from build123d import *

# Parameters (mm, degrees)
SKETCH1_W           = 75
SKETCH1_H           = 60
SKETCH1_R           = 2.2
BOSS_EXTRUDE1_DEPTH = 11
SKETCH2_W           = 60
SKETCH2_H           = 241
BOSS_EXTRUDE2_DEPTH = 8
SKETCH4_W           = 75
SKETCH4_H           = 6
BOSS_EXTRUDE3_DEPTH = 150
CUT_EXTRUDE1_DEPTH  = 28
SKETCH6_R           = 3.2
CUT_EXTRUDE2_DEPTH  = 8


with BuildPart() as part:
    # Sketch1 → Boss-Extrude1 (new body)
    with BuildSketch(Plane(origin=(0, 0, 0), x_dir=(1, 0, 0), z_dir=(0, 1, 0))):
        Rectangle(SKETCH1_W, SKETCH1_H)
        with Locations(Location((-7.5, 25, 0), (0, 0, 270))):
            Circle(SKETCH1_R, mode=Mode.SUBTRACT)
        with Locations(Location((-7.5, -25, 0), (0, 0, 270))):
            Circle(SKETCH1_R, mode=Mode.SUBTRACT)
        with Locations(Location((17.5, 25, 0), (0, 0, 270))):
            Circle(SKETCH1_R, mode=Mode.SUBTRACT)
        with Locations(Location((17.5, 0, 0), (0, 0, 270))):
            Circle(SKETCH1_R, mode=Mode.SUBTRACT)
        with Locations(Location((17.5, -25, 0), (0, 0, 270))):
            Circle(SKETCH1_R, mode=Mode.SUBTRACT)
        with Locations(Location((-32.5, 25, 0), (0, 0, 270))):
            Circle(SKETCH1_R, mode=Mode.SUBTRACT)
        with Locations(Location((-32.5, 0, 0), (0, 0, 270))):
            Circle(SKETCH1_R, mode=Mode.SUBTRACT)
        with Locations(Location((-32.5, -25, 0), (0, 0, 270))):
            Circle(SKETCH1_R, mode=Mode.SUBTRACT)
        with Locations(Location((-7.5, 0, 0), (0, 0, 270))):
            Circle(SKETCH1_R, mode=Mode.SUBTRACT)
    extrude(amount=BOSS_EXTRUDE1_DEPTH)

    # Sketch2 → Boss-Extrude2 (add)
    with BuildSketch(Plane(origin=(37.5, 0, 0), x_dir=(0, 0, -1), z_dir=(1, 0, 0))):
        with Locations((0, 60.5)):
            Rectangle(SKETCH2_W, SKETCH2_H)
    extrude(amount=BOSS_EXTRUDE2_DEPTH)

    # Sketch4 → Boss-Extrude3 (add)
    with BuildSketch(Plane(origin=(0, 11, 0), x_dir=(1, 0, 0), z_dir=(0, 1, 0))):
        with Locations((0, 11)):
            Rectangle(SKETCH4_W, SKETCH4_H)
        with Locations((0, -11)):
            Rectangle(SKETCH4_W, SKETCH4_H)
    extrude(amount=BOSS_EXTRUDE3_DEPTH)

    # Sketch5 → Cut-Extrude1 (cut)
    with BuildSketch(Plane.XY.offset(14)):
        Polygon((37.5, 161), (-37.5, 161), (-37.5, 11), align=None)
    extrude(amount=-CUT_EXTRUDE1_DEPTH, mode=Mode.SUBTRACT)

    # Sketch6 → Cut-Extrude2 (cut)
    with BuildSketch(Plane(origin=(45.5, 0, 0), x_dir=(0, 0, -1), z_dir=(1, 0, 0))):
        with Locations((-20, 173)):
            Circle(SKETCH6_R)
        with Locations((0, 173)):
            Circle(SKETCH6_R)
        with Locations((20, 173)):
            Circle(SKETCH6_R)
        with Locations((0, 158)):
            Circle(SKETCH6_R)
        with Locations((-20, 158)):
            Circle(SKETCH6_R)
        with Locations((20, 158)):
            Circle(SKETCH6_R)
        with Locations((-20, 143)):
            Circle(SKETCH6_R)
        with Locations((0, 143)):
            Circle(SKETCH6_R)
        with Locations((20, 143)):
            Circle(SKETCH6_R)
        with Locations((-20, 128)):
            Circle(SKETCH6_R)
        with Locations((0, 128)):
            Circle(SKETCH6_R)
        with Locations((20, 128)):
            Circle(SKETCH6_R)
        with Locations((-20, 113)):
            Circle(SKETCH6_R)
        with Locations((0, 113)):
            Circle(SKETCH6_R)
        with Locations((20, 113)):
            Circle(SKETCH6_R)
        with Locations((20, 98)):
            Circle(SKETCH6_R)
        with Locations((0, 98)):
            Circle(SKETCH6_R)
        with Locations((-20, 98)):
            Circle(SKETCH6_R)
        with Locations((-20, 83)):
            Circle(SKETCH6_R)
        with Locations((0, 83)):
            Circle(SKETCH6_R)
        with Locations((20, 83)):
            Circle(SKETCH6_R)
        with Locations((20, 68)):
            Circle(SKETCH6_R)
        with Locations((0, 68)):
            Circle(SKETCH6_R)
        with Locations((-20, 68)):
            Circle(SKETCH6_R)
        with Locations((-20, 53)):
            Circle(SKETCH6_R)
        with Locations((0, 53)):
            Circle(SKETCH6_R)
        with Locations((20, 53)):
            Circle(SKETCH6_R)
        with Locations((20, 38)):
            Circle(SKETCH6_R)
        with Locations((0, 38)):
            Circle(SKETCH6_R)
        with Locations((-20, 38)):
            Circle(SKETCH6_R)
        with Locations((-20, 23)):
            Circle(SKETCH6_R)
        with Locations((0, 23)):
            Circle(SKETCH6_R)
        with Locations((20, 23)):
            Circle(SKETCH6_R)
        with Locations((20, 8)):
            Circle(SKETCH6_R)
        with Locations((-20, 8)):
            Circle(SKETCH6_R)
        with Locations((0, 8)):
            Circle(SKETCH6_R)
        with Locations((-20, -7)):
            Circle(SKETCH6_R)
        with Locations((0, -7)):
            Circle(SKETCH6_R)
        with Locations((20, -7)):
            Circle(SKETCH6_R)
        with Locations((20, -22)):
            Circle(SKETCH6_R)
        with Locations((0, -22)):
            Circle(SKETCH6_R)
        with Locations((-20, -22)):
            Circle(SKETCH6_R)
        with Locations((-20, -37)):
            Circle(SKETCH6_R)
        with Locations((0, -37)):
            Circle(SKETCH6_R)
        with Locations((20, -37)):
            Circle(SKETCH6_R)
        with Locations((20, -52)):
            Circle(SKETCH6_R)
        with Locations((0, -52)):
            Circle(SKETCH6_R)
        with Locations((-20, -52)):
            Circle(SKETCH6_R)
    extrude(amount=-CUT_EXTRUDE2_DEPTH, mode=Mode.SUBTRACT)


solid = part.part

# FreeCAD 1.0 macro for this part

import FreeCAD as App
import Part
import Sketcher

V = App.Vector

doc = App.newDocument("Part")
body = doc.addObject("PartDesign::Body", "Body")

# Sketch on XZ plane
sketch1 = body.newObject("Sketcher::SketchObject", "Sketch")
sketch1.AttachmentSupport = (doc.getObject("XZ_Plane"), [""])
sketch1.MapMode = "FlatFace"
sketch1.addGeometry([
    Part.LineSegment(V(-37.5, -30, 0), V(-37.5, 30, 0)),  # 0
    Part.LineSegment(V(-37.5, 30, 0), V(37.5, 30, 0)),  # 1
    Part.LineSegment(V(37.5, 30, 0), V(37.5, -30, 0)),  # 2
    Part.LineSegment(V(37.5, -30, 0), V(-37.5, -30, 0)),  # 3
    Part.Circle(V(-32.5, 25, 0), V(0, 0, 1), 2.2),  # 4
    Part.Circle(V(-7.5, 25, 0), V(0, 0, 1), 2.2),  # 5
    Part.Circle(V(17.5, 25, 0), V(0, 0, 1), 2.2),  # 6
    Part.Circle(V(-32.5, 0, 0), V(0, 0, 1), 2.2),  # 7
    Part.Circle(V(-32.5, -25, 0), V(0, 0, 1), 2.2),  # 8
    Part.Circle(V(-7.5, 0, 0), V(0, 0, 1), 2.2),  # 9
    Part.Circle(V(17.5, 0, 0), V(0, 0, 1), 2.2),  # 10
    Part.Circle(V(-7.5, -25, 0), V(0, 0, 1), 2.2),  # 11
    Part.Circle(V(17.5, -25, 0), V(0, 0, 1), 2.2),  # 12
], False)
sketch1.addConstraint([
    Sketcher.Constraint("Coincident", 0, 2, 1, 1),
    Sketcher.Constraint("Coincident", 1, 2, 2, 1),
    Sketcher.Constraint("Coincident", 2, 2, 3, 1),
    Sketcher.Constraint("Coincident", 3, 2, 0, 1),
    Sketcher.Constraint("Vertical", 0),
    Sketcher.Constraint("Horizontal", 1),
    Sketcher.Constraint("Vertical", 2),
    Sketcher.Constraint("Horizontal", 3),
    Sketcher.Constraint("Equal", 4, 5),
    Sketcher.Constraint("Equal", 5, 6),
    Sketcher.Constraint("Equal", 6, 7),
    Sketcher.Constraint("Equal", 7, 8),
    Sketcher.Constraint("Equal", 8, 9),
    Sketcher.Constraint("Equal", 9, 10),
    Sketcher.Constraint("Equal", 10, 11),
    Sketcher.Constraint("Equal", 11, 12),
    Sketcher.Constraint("Symmetric", 0, 2, 2, 2, -1, 1),
    Sketcher.Constraint("Symmetric", 4, 3, 8, 3, -1),
    Sketcher.Constraint("Symmetric", 5, 3, 11, 3, -1),
    Sketcher.Constraint("Symmetric", 6, 3, 12, 3, -1),
    Sketcher.Constraint("PointOnObject", 7, 3, -1),
    Sketcher.Constraint("PointOnObject", 9, 3, -1),
    Sketcher.Constraint("PointOnObject", 10, 3, -1),
    Sketcher.Constraint("Horizontal", 4, 3, 5, 3),
    Sketcher.Constraint("Horizontal", 5, 3, 6, 3),
    Sketcher.Constraint("Vertical", 4, 3, 7, 3),
    Sketcher.Constraint("Vertical", 5, 3, 9, 3),
    Sketcher.Constraint("Vertical", 6, 3, 10, 3),
    Sketcher.Constraint("Diameter", 4, 4.4),
    Sketcher.Constraint("DistanceX", 1, 1, 1, 2, 75.0),
    Sketcher.Constraint("DistanceY", 0, 1, 0, 2, 60.0),
    Sketcher.Constraint("DistanceY", -1, 1, 4, 3, 25.0),
    Sketcher.Constraint("DistanceX", 4, 3, 5, 3, 25.0),
    Sketcher.Constraint("DistanceX", 5, 3, 6, 3, 25.0),
    Sketcher.Constraint("DistanceX", 0, 2, 4, 3, 5.0),
])
pad1 = body.newObject("PartDesign::Pad", "Pad")
pad1.Profile = sketch1
pad1.Length = 11
pad1.Reversed = True

# Sketch on YZ plane
sketch2 = body.newObject("Sketcher::SketchObject", "Sketch001")
sketch2.AttachmentSupport = (doc.getObject("YZ_Plane"), [""])
sketch2.MapMode = "FlatFace"
sketch2.AttachmentOffset = App.Placement(V(0, 0, 37.5), App.Rotation())
sketch2.addGeometry([
    Part.LineSegment(V(181, 30, 0), V(-60, 30, 0)),
    Part.LineSegment(V(-60, 30, 0), V(-60, -30, 0)),
    Part.LineSegment(V(-60, -30, 0), V(181, -30, 0)),
    Part.LineSegment(V(181, -30, 0), V(181, 30, 0)),
], False)
sketch2.addConstraint([
    Sketcher.Constraint("Coincident", 0, 2, 1, 1),
    Sketcher.Constraint("Coincident", 1, 2, 2, 1),
    Sketcher.Constraint("Coincident", 2, 2, 3, 1),
    Sketcher.Constraint("Coincident", 3, 2, 0, 1),
    Sketcher.Constraint("Horizontal", 0),
    Sketcher.Constraint("Vertical", 1),
    Sketcher.Constraint("Horizontal", 2),
    Sketcher.Constraint("Vertical", 3),
    Sketcher.Constraint("DistanceX", 0, 2, 0, 1, 241.0),
    Sketcher.Constraint("DistanceY", 1, 2, 1, 1, 60.0),
    Sketcher.Constraint("DistanceX", 0, 2, -1, 1, 60.0),
    Sketcher.Constraint("DistanceY", -1, 1, 0, 2, 30.0),
])
pad2 = body.newObject("PartDesign::Pad", "Pad001")
pad2.Profile = sketch2
pad2.Length = 8

# Sketch on XZ plane
sketch3 = body.newObject("Sketcher::SketchObject", "Sketch002")
sketch3.AttachmentSupport = (doc.getObject("XZ_Plane"), [""])
sketch3.MapMode = "FlatFace"
sketch3.AttachmentOffset = App.Placement(V(0, 0, -11), App.Rotation())
sketch3.addGeometry([
    Part.LineSegment(V(-38, -14, 0), V(-38, -8, 0)),  # 0
    Part.LineSegment(V(-38, -8, 0), V(38, -8, 0)),  # 1
    Part.LineSegment(V(38, -8, 0), V(38, -14, 0)),  # 2
    Part.LineSegment(V(38, -14, 0), V(-38, -14, 0)),  # 3
    Part.LineSegment(V(-38, 8, 0), V(-38, 14, 0)),  # 4
    Part.LineSegment(V(-38, 14, 0), V(38, 14, 0)),  # 5
    Part.LineSegment(V(38, 14, 0), V(38, 8, 0)),  # 6
    Part.LineSegment(V(38, 8, 0), V(-38, 8, 0)),  # 7
], False)
sketch3.addConstraint([
    Sketcher.Constraint("Coincident", 0, 2, 1, 1),
    Sketcher.Constraint("Coincident", 1, 2, 2, 1),
    Sketcher.Constraint("Coincident", 2, 2, 3, 1),
    Sketcher.Constraint("Coincident", 3, 2, 0, 1),
    Sketcher.Constraint("Coincident", 4, 2, 5, 1),
    Sketcher.Constraint("Coincident", 5, 2, 6, 1),
    Sketcher.Constraint("Coincident", 6, 2, 7, 1),
    Sketcher.Constraint("Coincident", 7, 2, 4, 1),
    Sketcher.Constraint("Vertical", 0),
    Sketcher.Constraint("Horizontal", 1),
    Sketcher.Constraint("Vertical", 2),
    Sketcher.Constraint("Horizontal", 3),
    Sketcher.Constraint("Vertical", 4),
    Sketcher.Constraint("Horizontal", 5),
    Sketcher.Constraint("Vertical", 6),
    Sketcher.Constraint("Horizontal", 7),
    Sketcher.Constraint("Symmetric", 2, 2, 4, 2, -1, 1),
    Sketcher.Constraint("Symmetric", 0, 2, 6, 2, -1, 1),
    Sketcher.Constraint("Vertical", 3, 2, 4, 2),
    Sketcher.Constraint("DistanceX", 1, 1, 1, 2, 75.0),
    Sketcher.Constraint("DistanceY", 0, 1, 0, 2, 6.0),
    Sketcher.Constraint("DistanceY", 0, 2, -1, 1, 8.0),
])
pad3 = body.newObject("PartDesign::Pad", "Pad002")
pad3.Profile = sketch3
pad3.Length = 150
pad3.Reversed = True

# Sketch on XY plane
sketch4 = body.newObject("Sketcher::SketchObject", "Sketch003")
sketch4.AttachmentSupport = (doc.getObject("XY_Plane"), [""])
sketch4.MapMode = "FlatFace"
sketch4.AttachmentOffset = App.Placement(V(0, 0, 14), App.Rotation())
sketch4.addGeometry([
    Part.LineSegment(V(38, 161, 0), V(-38, 161, 0)),
    Part.LineSegment(V(-38, 161, 0), V(-38, 11, 0)),
    Part.LineSegment(V(-38, 11, 0), V(38, 161, 0)),
], False)
sketch4.addConstraint([
    Sketcher.Constraint("Coincident", 0, 2, 1, 1),
    Sketcher.Constraint("Coincident", 1, 2, 2, 1),
    Sketcher.Constraint("Coincident", 2, 2, 0, 1),
    Sketcher.Constraint("Horizontal", 0),
    Sketcher.Constraint("Vertical", 1),
    Sketcher.Constraint("DistanceX", 0, 2, 0, 1, 75.0),
    Sketcher.Constraint("DistanceY", 1, 2, 1, 1, 150.0),
    Sketcher.Constraint("DistanceY", -1, 1, 0, 2, 161.0),
    Sketcher.Constraint("DistanceX", 0, 2, -1, 1, 37.5),
])
pocket1 = body.newObject("PartDesign::Pocket", "Pocket")
pocket1.Profile = sketch4
pocket1.Length = 28

# Sketch on YZ plane
sketch5 = body.newObject("Sketcher::SketchObject", "Sketch004")
sketch5.AttachmentSupport = (doc.getObject("YZ_Plane"), [""])
sketch5.MapMode = "FlatFace"
sketch5.AttachmentOffset = App.Placement(V(0, 0, 45.5), App.Rotation())
sketch5.addGeometry([
    Part.Circle(V(173, 20, 0), V(0, 0, 1), 3.2),  # 0
    Part.Circle(V(173, 0, 0), V(0, 0, 1), 3.2),  # 1
    Part.Circle(V(173, -20, 0), V(0, 0, 1), 3.2),  # 2
    Part.Circle(V(158, 0, 0), V(0, 0, 1), 3.2),  # 3
    Part.Circle(V(158, 20, 0), V(0, 0, 1), 3.2),  # 4
    Part.Circle(V(158, -20, 0), V(0, 0, 1), 3.2),  # 5
    Part.Circle(V(143, 20, 0), V(0, 0, 1), 3.2),  # 6
    Part.Circle(V(143, 0, 0), V(0, 0, 1), 3.2),  # 7
    Part.Circle(V(143, -20, 0), V(0, 0, 1), 3.2),  # 8
    Part.Circle(V(128, 20, 0), V(0, 0, 1), 3.2),  # 9
    Part.Circle(V(128, 0, 0), V(0, 0, 1), 3.2),  # 10
    Part.Circle(V(128, -20, 0), V(0, 0, 1), 3.2),  # 11
    Part.Circle(V(113, 20, 0), V(0, 0, 1), 3.2),  # 12
    Part.Circle(V(113, 0, 0), V(0, 0, 1), 3.2),  # 13
    Part.Circle(V(113, -20, 0), V(0, 0, 1), 3.2),  # 14
    Part.Circle(V(98, -20, 0), V(0, 0, 1), 3.2),  # 15
    Part.Circle(V(98, 0, 0), V(0, 0, 1), 3.2),  # 16
    Part.Circle(V(98, 20, 0), V(0, 0, 1), 3.2),  # 17
    Part.Circle(V(83, 20, 0), V(0, 0, 1), 3.2),  # 18
    Part.Circle(V(83, 0, 0), V(0, 0, 1), 3.2),  # 19
    Part.Circle(V(83, -20, 0), V(0, 0, 1), 3.2),  # 20
    Part.Circle(V(68, -20, 0), V(0, 0, 1), 3.2),  # 21
    Part.Circle(V(68, 0, 0), V(0, 0, 1), 3.2),  # 22
    Part.Circle(V(68, 20, 0), V(0, 0, 1), 3.2),  # 23
    Part.Circle(V(53, 20, 0), V(0, 0, 1), 3.2),  # 24
    Part.Circle(V(53, 0, 0), V(0, 0, 1), 3.2),  # 25
    Part.Circle(V(53, -20, 0), V(0, 0, 1), 3.2),  # 26
    Part.Circle(V(38, -20, 0), V(0, 0, 1), 3.2),  # 27
    Part.Circle(V(38, 0, 0), V(0, 0, 1), 3.2),  # 28
    Part.Circle(V(38, 20, 0), V(0, 0, 1), 3.2),  # 29
    Part.Circle(V(23, 20, 0), V(0, 0, 1), 3.2),  # 30
    Part.Circle(V(23, 0, 0), V(0, 0, 1), 3.2),  # 31
    Part.Circle(V(23, -20, 0), V(0, 0, 1), 3.2),  # 32
    Part.Circle(V(8, -20, 0), V(0, 0, 1), 3.2),  # 33
    Part.Circle(V(8, 20, 0), V(0, 0, 1), 3.2),  # 34
    Part.Circle(V(8, 0, 0), V(0, 0, 1), 3.2),  # 35
    Part.Circle(V(-7, 20, 0), V(0, 0, 1), 3.2),  # 36
    Part.Circle(V(-7, 0, 0), V(0, 0, 1), 3.2),  # 37
    Part.Circle(V(-7, -20, 0), V(0, 0, 1), 3.2),  # 38
    Part.Circle(V(-22, -20, 0), V(0, 0, 1), 3.2),  # 39
    Part.Circle(V(-22, 0, 0), V(0, 0, 1), 3.2),  # 40
    Part.Circle(V(-22, 20, 0), V(0, 0, 1), 3.2),  # 41
    Part.Circle(V(-37, 20, 0), V(0, 0, 1), 3.2),  # 42
    Part.Circle(V(-37, 0, 0), V(0, 0, 1), 3.2),  # 43
    Part.Circle(V(-37, -20, 0), V(0, 0, 1), 3.2),  # 44
    Part.Circle(V(-52, -20, 0), V(0, 0, 1), 3.2),  # 45
    Part.Circle(V(-52, 0, 0), V(0, 0, 1), 3.2),  # 46
    Part.Circle(V(-52, 20, 0), V(0, 0, 1), 3.2),  # 47
], False)
sketch5.addConstraint([
    Sketcher.Constraint("Equal", 0, 1),
    Sketcher.Constraint("Equal", 1, 2),
    Sketcher.Constraint("Equal", 2, 3),
    Sketcher.Constraint("Equal", 3, 4),
    Sketcher.Constraint("Equal", 4, 5),
    Sketcher.Constraint("Equal", 5, 6),
    Sketcher.Constraint("Equal", 6, 7),
    Sketcher.Constraint("Equal", 7, 8),
    Sketcher.Constraint("Equal", 8, 9),
    Sketcher.Constraint("Equal", 9, 10),
    Sketcher.Constraint("Equal", 10, 11),
    Sketcher.Constraint("Equal", 11, 12),
    Sketcher.Constraint("Equal", 12, 13),
    Sketcher.Constraint("Equal", 13, 14),
    Sketcher.Constraint("Equal", 14, 15),
    Sketcher.Constraint("Equal", 15, 16),
    Sketcher.Constraint("Equal", 16, 17),
    Sketcher.Constraint("Equal", 17, 18),
    Sketcher.Constraint("Equal", 18, 19),
    Sketcher.Constraint("Equal", 19, 20),
    Sketcher.Constraint("Equal", 20, 21),
    Sketcher.Constraint("Equal", 21, 22),
    Sketcher.Constraint("Equal", 22, 23),
    Sketcher.Constraint("Equal", 23, 24),
    Sketcher.Constraint("Equal", 24, 25),
    Sketcher.Constraint("Equal", 25, 26),
    Sketcher.Constraint("Equal", 26, 27),
    Sketcher.Constraint("Equal", 27, 28),
    Sketcher.Constraint("Equal", 28, 29),
    Sketcher.Constraint("Equal", 29, 30),
    Sketcher.Constraint("Equal", 30, 31),
    Sketcher.Constraint("Equal", 31, 32),
    Sketcher.Constraint("Equal", 32, 33),
    Sketcher.Constraint("Equal", 33, 34),
    Sketcher.Constraint("Equal", 34, 35),
    Sketcher.Constraint("Equal", 35, 36),
    Sketcher.Constraint("Equal", 36, 37),
    Sketcher.Constraint("Equal", 37, 38),
    Sketcher.Constraint("Equal", 38, 39),
    Sketcher.Constraint("Equal", 39, 40),
    Sketcher.Constraint("Equal", 40, 41),
    Sketcher.Constraint("Equal", 41, 42),
    Sketcher.Constraint("Equal", 42, 43),
    Sketcher.Constraint("Equal", 43, 44),
    Sketcher.Constraint("Equal", 44, 45),
    Sketcher.Constraint("Equal", 45, 46),
    Sketcher.Constraint("Equal", 46, 47),
    Sketcher.Constraint("Symmetric", 0, 3, 2, 3, -1),
    Sketcher.Constraint("Symmetric", 4, 3, 5, 3, -1),
    Sketcher.Constraint("Symmetric", 6, 3, 8, 3, -1),
    Sketcher.Constraint("Symmetric", 9, 3, 11, 3, -1),
    Sketcher.Constraint("Symmetric", 12, 3, 14, 3, -1),
    Sketcher.Constraint("Symmetric", 15, 3, 17, 3, -1),
    Sketcher.Constraint("Symmetric", 18, 3, 20, 3, -1),
    Sketcher.Constraint("Symmetric", 21, 3, 23, 3, -1),
    Sketcher.Constraint("Symmetric", 24, 3, 26, 3, -1),
    Sketcher.Constraint("Symmetric", 27, 3, 29, 3, -1),
    Sketcher.Constraint("Symmetric", 30, 3, 32, 3, -1),
    Sketcher.Constraint("Symmetric", 33, 3, 34, 3, -1),
    Sketcher.Constraint("Symmetric", 36, 3, 38, 3, -1),
    Sketcher.Constraint("Symmetric", 39, 3, 41, 3, -1),
    Sketcher.Constraint("Symmetric", 42, 3, 44, 3, -1),
    Sketcher.Constraint("Symmetric", 45, 3, 47, 3, -1),
    Sketcher.Constraint("PointOnObject", 1, 3, -1),
    Sketcher.Constraint("PointOnObject", 3, 3, -1),
    Sketcher.Constraint("PointOnObject", 7, 3, -1),
    Sketcher.Constraint("PointOnObject", 10, 3, -1),
    Sketcher.Constraint("PointOnObject", 13, 3, -1),
    Sketcher.Constraint("PointOnObject", 16, 3, -1),
    Sketcher.Constraint("PointOnObject", 19, 3, -1),
    Sketcher.Constraint("PointOnObject", 22, 3, -1),
    Sketcher.Constraint("PointOnObject", 25, 3, -1),
    Sketcher.Constraint("PointOnObject", 28, 3, -1),
    Sketcher.Constraint("PointOnObject", 31, 3, -1),
    Sketcher.Constraint("PointOnObject", 35, 3, -1),
    Sketcher.Constraint("PointOnObject", 37, 3, -1),
    Sketcher.Constraint("PointOnObject", 40, 3, -1),
    Sketcher.Constraint("PointOnObject", 43, 3, -1),
    Sketcher.Constraint("PointOnObject", 46, 3, -1),
    Sketcher.Constraint("Horizontal", 0, 3, 4, 3),
    Sketcher.Constraint("Horizontal", 4, 3, 6, 3),
    Sketcher.Constraint("Horizontal", 6, 3, 9, 3),
    Sketcher.Constraint("Horizontal", 9, 3, 12, 3),
    Sketcher.Constraint("Horizontal", 14, 3, 15, 3),
    Sketcher.Constraint("Horizontal", 17, 3, 18, 3),
    Sketcher.Constraint("Horizontal", 20, 3, 21, 3),
    Sketcher.Constraint("Horizontal", 23, 3, 24, 3),
    Sketcher.Constraint("Horizontal", 26, 3, 27, 3),
    Sketcher.Constraint("Horizontal", 29, 3, 30, 3),
    Sketcher.Constraint("Horizontal", 32, 3, 33, 3),
    Sketcher.Constraint("Horizontal", 34, 3, 36, 3),
    Sketcher.Constraint("Horizontal", 38, 3, 39, 3),
    Sketcher.Constraint("Horizontal", 41, 3, 42, 3),
    Sketcher.Constraint("Horizontal", 44, 3, 45, 3),
    Sketcher.Constraint("Vertical", 0, 3, 1, 3),
    Sketcher.Constraint("Vertical", 3, 3, 4, 3),
    Sketcher.Constraint("Vertical", 6, 3, 7, 3),
    Sketcher.Constraint("Vertical", 9, 3, 10, 3),
    Sketcher.Constraint("Vertical", 12, 3, 13, 3),
    Sketcher.Constraint("Vertical", 15, 3, 16, 3),
    Sketcher.Constraint("Vertical", 18, 3, 19, 3),
    Sketcher.Constraint("Vertical", 21, 3, 22, 3),
    Sketcher.Constraint("Vertical", 24, 3, 25, 3),
    Sketcher.Constraint("Vertical", 27, 3, 28, 3),
    Sketcher.Constraint("Vertical", 30, 3, 31, 3),
    Sketcher.Constraint("Vertical", 34, 3, 35, 3),
    Sketcher.Constraint("Vertical", 36, 3, 37, 3),
    Sketcher.Constraint("Vertical", 39, 3, 40, 3),
    Sketcher.Constraint("Vertical", 42, 3, 43, 3),
    Sketcher.Constraint("Vertical", 45, 3, 46, 3),
    Sketcher.Constraint("Diameter", 0, 6.4),
    Sketcher.Constraint("DistanceX", -1, 1, 0, 3, 173.0),
    Sketcher.Constraint("DistanceY", -1, 1, 0, 3, 20.0),
    Sketcher.Constraint("DistanceX", -1, 1, 3, 3, 158.0),
    Sketcher.Constraint("DistanceX", -1, 1, 6, 3, 143.0),
    Sketcher.Constraint("DistanceX", -1, 1, 9, 3, 128.0),
    Sketcher.Constraint("DistanceX", -1, 1, 12, 3, 113.0),
    Sketcher.Constraint("DistanceX", -1, 1, 15, 3, 98.0),
    Sketcher.Constraint("DistanceX", -1, 1, 18, 3, 83.0),
    Sketcher.Constraint("DistanceX", -1, 1, 21, 3, 68.0),
    Sketcher.Constraint("DistanceX", -1, 1, 24, 3, 53.0),
    Sketcher.Constraint("DistanceX", -1, 1, 27, 3, 38.0),
    Sketcher.Constraint("DistanceX", -1, 1, 30, 3, 23.0),
    Sketcher.Constraint("DistanceX", -1, 1, 33, 3, 8.0),
    Sketcher.Constraint("DistanceX", 36, 3, -1, 1, 7.0),
    Sketcher.Constraint("DistanceX", 39, 3, -1, 1, 22.0),
    Sketcher.Constraint("DistanceX", 42, 3, -1, 1, 37.0),
    Sketcher.Constraint("DistanceX", 45, 3, -1, 1, 52.0),
])
pocket2 = body.newObject("PartDesign::Pocket", "Pocket001")
pocket2.Profile = sketch5
pocket2.Length = 8

doc.recompute()
